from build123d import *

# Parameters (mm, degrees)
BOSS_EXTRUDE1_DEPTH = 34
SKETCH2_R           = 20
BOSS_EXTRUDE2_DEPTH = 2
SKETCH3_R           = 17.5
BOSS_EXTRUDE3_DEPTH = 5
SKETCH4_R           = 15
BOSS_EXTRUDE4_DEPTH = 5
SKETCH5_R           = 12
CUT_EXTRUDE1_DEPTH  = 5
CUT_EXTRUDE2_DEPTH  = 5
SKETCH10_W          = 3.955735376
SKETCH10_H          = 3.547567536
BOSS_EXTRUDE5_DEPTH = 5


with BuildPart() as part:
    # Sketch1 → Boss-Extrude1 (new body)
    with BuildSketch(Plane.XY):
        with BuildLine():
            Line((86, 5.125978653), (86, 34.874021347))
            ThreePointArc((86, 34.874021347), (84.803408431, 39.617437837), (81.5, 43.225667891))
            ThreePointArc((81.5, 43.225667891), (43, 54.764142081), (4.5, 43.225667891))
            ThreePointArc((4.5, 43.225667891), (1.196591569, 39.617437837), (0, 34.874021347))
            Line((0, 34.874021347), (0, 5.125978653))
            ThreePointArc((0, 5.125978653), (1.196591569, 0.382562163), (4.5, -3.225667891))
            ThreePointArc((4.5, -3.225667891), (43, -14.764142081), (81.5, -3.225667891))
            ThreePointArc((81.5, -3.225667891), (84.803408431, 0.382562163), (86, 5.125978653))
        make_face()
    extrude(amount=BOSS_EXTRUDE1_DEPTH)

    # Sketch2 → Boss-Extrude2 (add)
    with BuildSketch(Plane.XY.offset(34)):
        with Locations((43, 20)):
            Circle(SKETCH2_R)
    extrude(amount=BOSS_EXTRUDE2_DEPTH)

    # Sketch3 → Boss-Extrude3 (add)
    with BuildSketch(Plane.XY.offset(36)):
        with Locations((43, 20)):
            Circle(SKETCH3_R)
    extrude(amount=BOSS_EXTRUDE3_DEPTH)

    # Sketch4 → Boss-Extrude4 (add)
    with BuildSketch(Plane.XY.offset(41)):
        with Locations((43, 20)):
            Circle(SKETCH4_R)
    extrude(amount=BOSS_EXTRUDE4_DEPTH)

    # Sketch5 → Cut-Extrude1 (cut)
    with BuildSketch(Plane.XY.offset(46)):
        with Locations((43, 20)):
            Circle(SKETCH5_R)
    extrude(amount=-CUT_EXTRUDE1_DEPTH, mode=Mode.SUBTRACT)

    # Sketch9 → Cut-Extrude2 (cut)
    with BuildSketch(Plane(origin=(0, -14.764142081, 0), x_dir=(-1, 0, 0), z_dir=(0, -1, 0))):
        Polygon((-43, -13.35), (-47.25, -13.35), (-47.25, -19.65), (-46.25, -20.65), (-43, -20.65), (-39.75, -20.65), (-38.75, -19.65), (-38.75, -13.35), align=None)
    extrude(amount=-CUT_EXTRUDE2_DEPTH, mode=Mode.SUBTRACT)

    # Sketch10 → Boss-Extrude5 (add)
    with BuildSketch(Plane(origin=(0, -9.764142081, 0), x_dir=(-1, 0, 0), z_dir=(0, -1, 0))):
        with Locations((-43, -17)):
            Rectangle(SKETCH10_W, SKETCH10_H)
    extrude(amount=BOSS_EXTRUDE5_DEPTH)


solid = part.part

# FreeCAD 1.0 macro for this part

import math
import FreeCAD as App
import Part
import Sketcher
from FreeCAD import Vector
Q = App.Units.Quantity


def add_polygon(sketch, points):
    """Adds a closed chain of lines whose ends are joined by coincident constraints."""
    first, n = sketch.GeometryCount, len(points)
    for a, b in zip(points, points[1:] + points[:1]):
        sketch.addGeometry(Part.LineSegment(App.Vector(*a, 0), App.Vector(*b, 0)), False)
    for i in range(n):
        sketch.addConstraint(Sketcher.Constraint("Coincident", first + i, 2, first + (i + 1) % n, 1))

doc = App.newDocument("Part")
params = doc.addObject("Spreadsheet::Sheet", "Params")
for row, (alias, value) in enumerate([
    ("sketch1_radius", "10 mm"),
    ("sketch1_radius2", "70 mm"),
    ("pad1_length", "34 mm"),
    ("sketch2_diameter", "40 mm"),
    ("pad2_length", "2 mm"),
    ("sketch3_diameter", "35 mm"),
    ("pad3_length", "5 mm"),
    ("sketch4_diameter", "30 mm"),
    ("pad4_length", "5 mm"),
    ("sketch5_diameter", "24 mm"),
    ("pocket1_length", "5 mm"),
    ("sketch6_width", "6.5 mm"),
    ("sketch6_width2", "8.5 mm"),
    ("sketch6_height", "6.3 mm"),
    ("pocket2_length", "5 mm"),
    ("pad5_length", "5 mm"),
], start=1):
    params.set(f"A{row}", alias)
    params.set(f"B{row}", "=" + value)
    params.setAlias(f"B{row}", alias)

body = doc.addObject("PartDesign::Body", "Body")

sketch1 = body.newObject("Sketcher::SketchObject", "Sketch")
sketch1.AttachmentSupport = (doc.getObject("XY_Plane"), [""])
sketch1.MapMode = "FlatFace"
sketch1.addGeometry([
    Part.LineSegment(Vector(86, 5, 0), Vector(86, 35, 0)),
    Part.ArcOfCircle(Part.Circle(Vector(76, 35, 0), Vector(0, 0, 1), 10), math.radians(0), math.radians(57)),
    Part.ArcOfCircle(Part.Circle(Vector(43, -15, 0), Vector(0, 0, 1), 70), math.radians(57), math.radians(123)),
    Part.ArcOfCircle(Part.Circle(Vector(10, 35, 0), Vector(0, 0, 1), 10), math.radians(123), math.radians(180)),
    Part.LineSegment(Vector(0, 35, 0), Vector(0, 5, 0)),
    Part.ArcOfCircle(Part.Circle(Vector(10, 5, 0), Vector(0, 0, 1), 10), math.radians(180), math.radians(237)),
    Part.ArcOfCircle(Part.Circle(Vector(43, 55, 0), Vector(0, 0, 1), 70), math.radians(-123), math.radians(-57)),
    Part.ArcOfCircle(Part.Circle(Vector(76, 5, 0), Vector(0, 0, 1), 10), math.radians(-57), math.radians(0)),
], False)
sketch1.addConstraint([
    Sketcher.Constraint("Tangent", 0, 2, 1, 1),
    Sketcher.Constraint("Tangent", 1, 2, 2, 1),
    Sketcher.Constraint("Tangent", 2, 2, 3, 1),
    Sketcher.Constraint("Tangent", 3, 2, 4, 1),
    Sketcher.Constraint("Tangent", 4, 2, 5, 1),
    Sketcher.Constraint("Tangent", 5, 2, 6, 1),
    Sketcher.Constraint("Tangent", 6, 2, 7, 1),
    Sketcher.Constraint("Tangent", 7, 2, 0, 1),
    Sketcher.Constraint("Vertical", 0),
    Sketcher.Constraint("Vertical", 4),
    Sketcher.Constraint("Equal", 1, 3),
    Sketcher.Constraint("Equal", 3, 5),
    Sketcher.Constraint("Equal", 2, 6),
    Sketcher.Constraint("Equal", 5, 7),
    Sketcher.Constraint("PointOnObject", 3, 2, -2),
    Sketcher.Constraint("Horizontal", 1, 3, 3, 3),
    Sketcher.Constraint("Horizontal", 5, 3, 7, 3),
    Sketcher.Constraint("Radius", 1, Q("10 mm")),
    Sketcher.Constraint("Radius", 2, Q("70 mm")),
    Sketcher.Constraint("DistanceX", -1, 1, 1, 3, Q("76 mm")),
    Sketcher.Constraint("DistanceY", 0, 1, 0, 2, Q("29.748043 mm")),
    Sketcher.Constraint("DistanceY", -1, 1, 1, 3, Q("34.874021 mm")),
])
sketch1.setExpression("Constraints[17]", "Params.sketch1_radius")
sketch1.setExpression("Constraints[18]", "Params.sketch1_radius2")
pad1 = body.newObject("PartDesign::Pad", "Pad")
pad1.Profile = sketch1
pad1.setExpression("Length", "Params.pad1_length")

sketch2 = body.newObject("Sketcher::SketchObject", "Sketch001")
sketch2.AttachmentSupport = (doc.getObject("XY_Plane"), [""])
sketch2.MapMode = "FlatFace"
sketch2.AttachmentOffset = App.Placement(Vector(0, 0, 34), App.Rotation())
sketch2.addGeometry(Part.Circle(Vector(43, 20, 0), Vector(0, 0, 1), 20), False)
sketch2.addConstraint([
    Sketcher.Constraint("Diameter", 0, Q("40 mm")),
    Sketcher.Constraint("DistanceX", -1, 1, 0, 3, Q("43 mm")),
    Sketcher.Constraint("DistanceY", -1, 1, 0, 3, Q("20 mm")),
])
sketch2.setExpression("Constraints[0]", "Params.sketch2_diameter")
pad2 = body.newObject("PartDesign::Pad", "Pad001")
pad2.Profile = sketch2
pad2.setExpression("Length", "Params.pad2_length")

sketch3 = body.newObject("Sketcher::SketchObject", "Sketch002")
sketch3.AttachmentSupport = (doc.getObject("XY_Plane"), [""])
sketch3.MapMode = "FlatFace"
sketch3.AttachmentOffset = App.Placement(Vector(0, 0, 36), App.Rotation())
sketch3.addGeometry(Part.Circle(Vector(43, 20, 0), Vector(0, 0, 1), 18), False)
sketch3.addConstraint([
    Sketcher.Constraint("Diameter", 0, Q("35 mm")),
    Sketcher.Constraint("DistanceX", -1, 1, 0, 3, Q("43 mm")),
    Sketcher.Constraint("DistanceY", -1, 1, 0, 3, Q("20 mm")),
])
sketch3.setExpression("Constraints[0]", "Params.sketch3_diameter")
pad3 = body.newObject("PartDesign::Pad", "Pad002")
pad3.Profile = sketch3
pad3.setExpression("Length", "Params.pad3_length")

sketch4 = body.newObject("Sketcher::SketchObject", "Sketch003")
sketch4.AttachmentSupport = (doc.getObject("XY_Plane"), [""])
sketch4.MapMode = "FlatFace"
sketch4.AttachmentOffset = App.Placement(Vector(0, 0, 41), App.Rotation())
sketch4.addGeometry(Part.Circle(Vector(43, 20, 0), Vector(0, 0, 1), 15), False)
sketch4.addConstraint([
    Sketcher.Constraint("Diameter", 0, Q("30 mm")),
    Sketcher.Constraint("DistanceX", -1, 1, 0, 3, Q("43 mm")),
    Sketcher.Constraint("DistanceY", -1, 1, 0, 3, Q("20 mm")),
])
sketch4.setExpression("Constraints[0]", "Params.sketch4_diameter")
pad4 = body.newObject("PartDesign::Pad", "Pad003")
pad4.Profile = sketch4
pad4.setExpression("Length", "Params.pad4_length")

sketch5 = body.newObject("Sketcher::SketchObject", "Sketch004")
sketch5.AttachmentSupport = (doc.getObject("XY_Plane"), [""])
sketch5.MapMode = "FlatFace"
sketch5.AttachmentOffset = App.Placement(Vector(0, 0, 46), App.Rotation())
sketch5.addGeometry(Part.Circle(Vector(43, 20, 0), Vector(0, 0, 1), 12), False)
sketch5.addConstraint([
    Sketcher.Constraint("Diameter", 0, Q("24 mm")),
    Sketcher.Constraint("DistanceX", -1, 1, 0, 3, Q("43 mm")),
    Sketcher.Constraint("DistanceY", -1, 1, 0, 3, Q("20 mm")),
])
sketch5.setExpression("Constraints[0]", "Params.sketch5_diameter")
pocket1 = body.newObject("PartDesign::Pocket", "Pocket")
pocket1.Profile = sketch5
pocket1.setExpression("Length", "Params.pocket1_length")

sketch6 = body.newObject("Sketcher::SketchObject", "Sketch005")
sketch6.AttachmentSupport = (doc.getObject("XZ_Plane"), [""])
sketch6.MapMode = "FlatFace"
sketch6.AttachmentOffset = App.Placement(Vector(0, 0, 14.764142), App.Rotation())
add_polygon(sketch6, [(47.2, 13.3), (47.2, 19.6), (46.2, 20.6), (39.8, 20.6), (38.8, 19.6), (38.8, 13.3)])
sketch6.addConstraint([
    Sketcher.Constraint("Vertical", 0),
    Sketcher.Constraint("Horizontal", 2),
    Sketcher.Constraint("Vertical", 4),
    Sketcher.Constraint("Horizontal", 5),
    Sketcher.Constraint("Perpendicular", 1, 3),
    Sketcher.Constraint("Horizontal", 0, 2, 3, 2),
    Sketcher.Constraint("Equal", 1, 3),
    Sketcher.Constraint("DistanceX", 2, 2, 2, 1, Q("6.5 mm")),
    Sketcher.Constraint("DistanceX", 5, 1, 5, 2, Q("8.5 mm")),
    Sketcher.Constraint("DistanceY", 0, 1, 0, 2, Q("6.3 mm")),
    Sketcher.Constraint("DistanceX", -1, 1, 0, 2, Q("47.25 mm")),
    Sketcher.Constraint("DistanceY", -1, 1, 0, 2, Q("19.65 mm")),
])
sketch6.setExpression("Constraints[13]", "Params.sketch6_width")
sketch6.setExpression("Constraints[14]", "Params.sketch6_width2")
sketch6.setExpression("Constraints[15]", "Params.sketch6_height")
pocket2 = body.newObject("PartDesign::Pocket", "Pocket001")
pocket2.Profile = sketch6
pocket2.setExpression("Length", "Params.pocket2_length")

sketch7 = body.newObject("Sketcher::SketchObject", "Sketch006")
sketch7.AttachmentSupport = (doc.getObject("XZ_Plane"), [""])
sketch7.MapMode = "FlatFace"
sketch7.AttachmentOffset = App.Placement(Vector(0, 0, 9.764142), App.Rotation())
add_polygon(sketch7, [(45, 15.2), (45, 18.8), (41, 18.8), (41, 15.2)])
sketch7.addConstraint([
    Sketcher.Constraint("Vertical", 0),
    Sketcher.Constraint("Horizontal", 1),
    Sketcher.Constraint("Vertical", 2),
    Sketcher.Constraint("Horizontal", 3),
    Sketcher.Constraint("DistanceX", 1, 2, 1, 1, Q("3.955735 mm")),
    Sketcher.Constraint("DistanceY", 0, 1, 0, 2, Q("3.547568 mm")),
    Sketcher.Constraint("DistanceX", -1, 1, 0, 2, Q("44.977868 mm")),
    Sketcher.Constraint("DistanceY", -1, 1, 0, 2, Q("18.773784 mm")),
])
pad5 = body.newObject("PartDesign::Pad", "Pad004")
pad5.Profile = sketch7
pad5.setExpression("Length", "Params.pad5_length")

doc.recompute()
